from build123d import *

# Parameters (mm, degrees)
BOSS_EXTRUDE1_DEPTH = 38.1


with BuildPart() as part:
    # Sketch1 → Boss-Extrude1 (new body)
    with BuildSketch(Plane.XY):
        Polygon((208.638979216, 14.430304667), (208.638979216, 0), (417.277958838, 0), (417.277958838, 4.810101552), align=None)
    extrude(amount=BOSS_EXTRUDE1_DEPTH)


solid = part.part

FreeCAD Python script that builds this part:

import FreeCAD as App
import Part
import Sketcher
from FreeCAD import Vector
Q = App.Units.Quantity


def add_polygon(sketch, points):
    """Adds a closed chain of lines whose ends are joined by coincident constraints."""
    first, n = sketch.GeometryCount, len(points)
    for a, b in zip(points, points[1:] + points[:1]):
        sketch.addGeometry(Part.LineSegment(App.Vector(*a, 0), App.Vector(*b, 0)), False)
    for i in range(n):
        sketch.addConstraint(Sketcher.Constraint("Coincident", first + i, 2, first + (i + 1) % n, 1))

doc = App.newDocument("Part")
body = doc.addObject("PartDesign::Body", "Body")

sketch1 = body.newObject("Sketcher::SketchObject", "Sketch")
sketch1.AttachmentSupport = (doc.getObject("XY_Plane"), [""])
sketch1.MapMode = "FlatFace"
add_polygon(sketch1, [(208.6, 14.4), (208.6, 0), (417.3, 0), (417.3, 4.8)])
sketch1.addConstraint([
    Sketcher.Constraint("Vertical", 0),
    Sketcher.Constraint("Horizontal", 1),
    Sketcher.Constraint("Vertical", 2),
    Sketcher.Constraint("PointOnObject", 0, 2, -1),
    Sketcher.Constraint("Angle", 3, Q("177.36 deg")),
    Sketcher.Constraint("DistanceY", 2, 1, 2, 2, Q("4.810102 mm")),
    Sketcher.Constraint("DistanceX", 1, 1, 1, 2, Q("208.63898 mm")),
    Sketcher.Constraint("DistanceX", -1, 1, 0, 2, Q("208.638979 mm")),
])
pad1 = body.newObject("PartDesign::Pad", "Pad")
pad1.Profile = sketch1
pad1.Length = Q("1.5 in")

doc.recompute()
